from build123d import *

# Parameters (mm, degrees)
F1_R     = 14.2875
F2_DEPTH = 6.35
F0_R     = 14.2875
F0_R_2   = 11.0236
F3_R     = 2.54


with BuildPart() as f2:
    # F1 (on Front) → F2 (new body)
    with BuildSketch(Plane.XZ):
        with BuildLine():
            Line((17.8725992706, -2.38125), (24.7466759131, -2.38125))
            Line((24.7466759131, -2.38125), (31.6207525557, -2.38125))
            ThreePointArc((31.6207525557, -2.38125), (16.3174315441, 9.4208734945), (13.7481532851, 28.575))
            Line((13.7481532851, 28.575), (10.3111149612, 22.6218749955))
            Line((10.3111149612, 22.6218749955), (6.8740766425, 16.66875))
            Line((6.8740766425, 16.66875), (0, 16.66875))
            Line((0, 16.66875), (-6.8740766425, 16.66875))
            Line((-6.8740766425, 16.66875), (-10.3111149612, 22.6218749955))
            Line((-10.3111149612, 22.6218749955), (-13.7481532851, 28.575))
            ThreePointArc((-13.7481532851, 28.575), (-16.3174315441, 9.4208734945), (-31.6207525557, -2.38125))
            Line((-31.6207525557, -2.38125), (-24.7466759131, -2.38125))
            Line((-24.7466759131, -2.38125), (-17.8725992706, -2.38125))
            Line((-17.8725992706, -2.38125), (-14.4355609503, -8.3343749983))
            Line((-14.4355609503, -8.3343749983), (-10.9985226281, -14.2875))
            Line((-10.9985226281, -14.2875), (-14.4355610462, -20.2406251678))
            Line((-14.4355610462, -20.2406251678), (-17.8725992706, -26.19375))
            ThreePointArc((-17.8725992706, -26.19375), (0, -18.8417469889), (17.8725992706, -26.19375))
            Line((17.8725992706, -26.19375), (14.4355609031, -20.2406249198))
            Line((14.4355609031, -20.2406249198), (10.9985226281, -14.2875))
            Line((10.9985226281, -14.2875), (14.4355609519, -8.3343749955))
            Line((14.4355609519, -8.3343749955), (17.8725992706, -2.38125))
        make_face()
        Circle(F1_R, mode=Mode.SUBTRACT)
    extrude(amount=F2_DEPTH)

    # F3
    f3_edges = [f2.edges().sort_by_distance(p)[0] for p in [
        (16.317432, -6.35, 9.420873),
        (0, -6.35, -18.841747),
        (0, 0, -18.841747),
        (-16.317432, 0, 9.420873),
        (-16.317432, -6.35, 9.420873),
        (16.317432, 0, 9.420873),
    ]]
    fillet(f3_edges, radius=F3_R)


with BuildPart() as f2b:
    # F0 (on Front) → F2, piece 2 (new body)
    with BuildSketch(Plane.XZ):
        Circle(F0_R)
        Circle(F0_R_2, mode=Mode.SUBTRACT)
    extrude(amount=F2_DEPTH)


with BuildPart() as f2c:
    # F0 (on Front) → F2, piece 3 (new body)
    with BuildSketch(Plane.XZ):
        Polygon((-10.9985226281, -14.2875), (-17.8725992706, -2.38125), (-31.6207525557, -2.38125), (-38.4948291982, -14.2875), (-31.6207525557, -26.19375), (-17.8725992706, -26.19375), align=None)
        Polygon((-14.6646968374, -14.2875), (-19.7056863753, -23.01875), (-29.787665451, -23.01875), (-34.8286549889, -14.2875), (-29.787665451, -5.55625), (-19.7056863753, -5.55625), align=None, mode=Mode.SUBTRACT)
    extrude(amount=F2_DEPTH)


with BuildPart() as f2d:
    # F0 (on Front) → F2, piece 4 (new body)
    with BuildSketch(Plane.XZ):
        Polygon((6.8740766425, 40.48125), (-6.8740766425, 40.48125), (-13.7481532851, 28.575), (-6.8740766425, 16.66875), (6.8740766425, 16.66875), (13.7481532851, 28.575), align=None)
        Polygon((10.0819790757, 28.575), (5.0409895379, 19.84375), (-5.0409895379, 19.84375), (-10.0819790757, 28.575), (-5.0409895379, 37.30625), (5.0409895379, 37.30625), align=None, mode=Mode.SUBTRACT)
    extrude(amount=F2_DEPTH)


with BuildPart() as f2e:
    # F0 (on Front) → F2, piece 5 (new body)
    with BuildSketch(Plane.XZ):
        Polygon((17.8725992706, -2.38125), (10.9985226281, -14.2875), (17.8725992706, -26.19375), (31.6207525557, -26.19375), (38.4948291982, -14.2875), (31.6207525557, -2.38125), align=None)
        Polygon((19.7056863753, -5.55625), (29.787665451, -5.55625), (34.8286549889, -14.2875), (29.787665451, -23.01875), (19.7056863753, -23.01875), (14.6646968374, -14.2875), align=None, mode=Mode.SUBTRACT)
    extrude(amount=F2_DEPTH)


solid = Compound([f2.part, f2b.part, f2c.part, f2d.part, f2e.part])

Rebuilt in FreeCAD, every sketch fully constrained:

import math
import FreeCAD as App
import Part
import Sketcher
Q = App.Units.Quantity


def edges_at(feature, points):
    """Names of the edges that pass closest to the given points."""
    edges = feature.Shape.Edges
    near = lambda p: min(range(len(edges)), key=lambda i: edges[i].distToShape(Part.Vertex(*p))[0])
    return sorted({f"Edge{near(p) + 1}" for p in points})


def add_polygon(sketch, points):
    """Adds a closed chain of lines whose ends are joined by coincident constraints."""
    first, n = sketch.GeometryCount, len(points)
    for a, b in zip(points, points[1:] + points[:1]):
        sketch.addGeometry(Part.LineSegment(App.Vector(*a, 0), App.Vector(*b, 0)), False)
    for i in range(n):
        sketch.addConstraint(Sketcher.Constraint("Coincident", first + i, 2, first + (i + 1) % n, 1))

doc = App.newDocument("Part")
body = doc.addObject("PartDesign::Body", "Body")

# Sketch on XZ plane
sketch1 = doc.addObject("Sketcher::SketchObject", "Sketch")
body.addObject(sketch1)
sketch1.AttachmentSupport = (doc.XZ_Plane, [""])
sketch1.MapMode = "FlatFace"
sketch1.addGeometry([
    Part.LineSegment(App.Vector(18, -2, 0), App.Vector(32, -2, 0)),  # 0
    Part.ArcOfCircle(Part.Circle(App.Vector(38, 22, 0), App.Vector(0, 0, 1), 25), math.radians(165), math.radians(255)),  # 1
    Part.LineSegment(App.Vector(14, 29, 0), App.Vector(7, 17, 0)),  # 2
    Part.LineSegment(App.Vector(7, 17, 0), App.Vector(-7, 17, 0)),  # 3
    Part.LineSegment(App.Vector(-7, 17, 0), App.Vector(-14, 29, 0)),  # 4
    Part.ArcOfCircle(Part.Circle(App.Vector(-38, 22, 0), App.Vector(0, 0, 1), 25), math.radians(-75), math.radians(15)),  # 5
    Part.LineSegment(App.Vector(-32, -2, 0), App.Vector(-18, -2, 0)),  # 6
    Part.LineSegment(App.Vector(-18, -2, 0), App.Vector(-14, -8, 0)),  # 7
    Part.LineSegment(App.Vector(-14, -8, 0), App.Vector(-11, -14, 0)),  # 8
    Part.LineSegment(App.Vector(-11, -14, 0), App.Vector(-14, -20, 0)),  # 9
    Part.LineSegment(App.Vector(-14, -20, 0), App.Vector(-18, -26, 0)),  # 10
    Part.ArcOfCircle(Part.Circle(App.Vector(0, -44, 0), App.Vector(0, 0, 1), 25), math.radians(45), math.radians(135)),  # 11
    Part.LineSegment(App.Vector(18, -26, 0), App.Vector(14, -20, 0)),  # 12
    Part.LineSegment(App.Vector(14, -20, 0), App.Vector(11, -14, 0)),  # 13
    Part.LineSegment(App.Vector(11, -14, 0), App.Vector(14, -8, 0)),  # 14
    Part.LineSegment(App.Vector(14, -8, 0), App.Vector(18, -2, 0)),  # 15
    Part.Circle(App.Vector(0, 0, 0), App.Vector(0, 0, 1), 14),  # 16
], False)
sketch1.addConstraint([
    Sketcher.Constraint("Coincident", 0, 2, 1, 2),
    Sketcher.Constraint("Coincident", 1, 1, 2, 1),
    Sketcher.Constraint("Coincident", 2, 2, 3, 1),
    Sketcher.Constraint("Coincident", 3, 2, 4, 1),
    Sketcher.Constraint("Coincident", 4, 2, 5, 2),
    Sketcher.Constraint("Coincident", 5, 1, 6, 1),
    Sketcher.Constraint("Coincident", 6, 2, 7, 1),
    Sketcher.Constraint("Coincident", 7, 2, 8, 1),
    Sketcher.Constraint("Coincident", 8, 2, 9, 1),
    Sketcher.Constraint("Coincident", 9, 2, 10, 1),
    Sketcher.Constraint("Coincident", 10, 2, 11, 2),
    Sketcher.Constraint("Coincident", 11, 1, 12, 1),
    Sketcher.Constraint("Coincident", 12, 2, 13, 1),
    Sketcher.Constraint("Coincident", 13, 2, 14, 1),
    Sketcher.Constraint("Coincident", 14, 2, 15, 1),
    Sketcher.Constraint("Coincident", 15, 2, 0, 1),
    Sketcher.Constraint("Horizontal", 0),
    Sketcher.Constraint("Horizontal", 3),
    Sketcher.Constraint("Horizontal", 6),
    Sketcher.Constraint("Coincident", 16, 3, -1, 1),
    Sketcher.Constraint("Equal", 1, 5),
    Sketcher.Constraint("Equal", 5, 11),
    Sketcher.Constraint("Symmetric", 1, 3, 5, 3, -2),
    Sketcher.Constraint("Symmetric", 10, 2, 11, 1, -2),
    Sketcher.Constraint("Symmetric", 9, 2, 12, 2, -2),
    Sketcher.Constraint("Symmetric", 8, 2, 13, 2, -2),
    Sketcher.Constraint("Symmetric", 7, 2, 14, 2, -2),
    Sketcher.Constraint("Symmetric", 6, 2, 15, 2, -2),
    Sketcher.Constraint("Parallel", 4, 7),
    Sketcher.Constraint("Parallel", 7, 8),
    Sketcher.Constraint("Parallel", 2, 9),
    Sketcher.Constraint("Parallel", 9, 10),
    Sketcher.Constraint("Parallel", 8, 12),
    Sketcher.Constraint("Horizontal", 1, 1, 4, 2),
    Sketcher.Constraint("Vertical", 7, 2, 9, 2),
    Sketcher.Constraint("Vertical", 6, 2, 10, 2),
    Sketcher.Constraint("Equal", 0, 3),
    Sketcher.Constraint("Equal", 7, 8),
    Sketcher.Constraint("Radius", 1, Q("1 in")),
    Sketcher.Constraint("Diameter", 16, Q("1.125 in")),
    Sketcher.Constraint("Angle", 2, Q("-120 deg")),
    Sketcher.Constraint("DistanceY", 0, 2, 2, 2, Q("0.75 in")),
    Sketcher.Constraint("DistanceY", 0, 2, -1, 1, Q("0.09375 in")),
    Sketcher.Constraint("DistanceY", -1, 1, 1, 1, Q("1.125 in")),
    Sketcher.Constraint("DistanceY", 7, 2, -1, 1, Q("0.328125 in")),
    Sketcher.Constraint("DistanceX", 6, 2, -1, 1, 17.872599),
    Sketcher.Constraint("DistanceX", 1, 1, 0, 2, 17.872599),
])
pad1 = doc.addObject("PartDesign::Pad", "Pad")
body.addObject(pad1)
pad1.Profile = sketch1
pad1.Length = Q("0.25 in")
doc.recompute()

fillet = doc.addObject("PartDesign::Fillet", "Fillet")
body.addObject(fillet)
fillet.Base = (pad1, edges_at(pad1, [
    (16.317, -6.35, 9.421),
    (0, -6.35, -18.842),
    (0, 0, -18.842),
    (-16.317, 0, 9.421),
    (-16.317, -6.35, 9.421),
    (16.317, 0, 9.421),
]))
fillet.Radius = Q("0.1 in")
body2 = doc.addObject("PartDesign::Body", "Body001")

# Sketch on XZ plane
sketch2 = doc.addObject("Sketcher::SketchObject", "Sketch001")
body2.addObject(sketch2)
sketch2.AttachmentSupport = (doc.getObject("XZ_Plane001"), [""])
sketch2.MapMode = "FlatFace"
sketch2.addGeometry([
    Part.Circle(App.Vector(0, 0, 0), App.Vector(0, 0, 1), 14),
    Part.Circle(App.Vector(0, 0, 0), App.Vector(0, 0, 1), 11),
], False)
sketch2.addConstraint([
    Sketcher.Constraint("Coincident", 0, 3, -1, 1),
    Sketcher.Constraint("Coincident", 1, 3, -1, 1),
    Sketcher.Constraint("Diameter", 0, Q("1.125 in")),
    Sketcher.Constraint("Diameter", 1, Q("0.868 in")),
])
pad2 = doc.addObject("PartDesign::Pad", "Pad001")
body2.addObject(pad2)
pad2.Profile = sketch2
pad2.Length = Q("0.25 in")
body3 = doc.addObject("PartDesign::Body", "Body002")

# Sketch on XZ plane
sketch3 = doc.addObject("Sketcher::SketchObject", "Sketch002")
body3.addObject(sketch3)
sketch3.AttachmentSupport = (doc.getObject("XZ_Plane002"), [""])
sketch3.MapMode = "FlatFace"
add_polygon(sketch3, [(-11, -14), (-18, -2), (-32, -2), (-38, -14), (-32, -26), (-18, -26)])  # lines 0-5
add_polygon(sketch3, [(-20, -6), (-15, -14), (-20, -23), (-30, -23), (-35, -14), (-30, -6)])  # lines 6-11
sketch3.addConstraint([
    Sketcher.Constraint("Horizontal", 1),
    Sketcher.Constraint("Horizontal", 4),
    Sketcher.Constraint("Horizontal", 8),
    Sketcher.Constraint("Horizontal", 11),
    Sketcher.Constraint("Parallel", 0, 3),
    Sketcher.Constraint("Parallel", 2, 5),
    Sketcher.Constraint("Parallel", 3, 6),
    Sketcher.Constraint("Parallel", 5, 7),
    Sketcher.Constraint("Parallel", 6, 9),
    Sketcher.Constraint("Parallel", 7, 10),
    Sketcher.Constraint("Horizontal", 2, 2, 5, 2),
    Sketcher.Constraint("Horizontal", 5, 2, 6, 2),
    Sketcher.Constraint("Horizontal", 6, 2, 9, 2),
    Sketcher.Constraint("Vertical", 1, 2, 3, 2),
    Sketcher.Constraint("Vertical", 0, 2, 4, 2),
    Sketcher.Constraint("Vertical", 8, 2, 10, 2),
    Sketcher.Constraint("Angle", 0, Q("120 deg")),
    Sketcher.Constraint("DistanceY", 0, 2, -1, 1, Q("0.09375 in")),
    Sketcher.Constraint("DistanceY", 2, 2, -1, 1, Q("0.5625 in")),
    Sketcher.Constraint("DistanceY", 7, 2, -1, 1, Q("0.90625 in")),
    Sketcher.Constraint("DistanceX", 8, 2, 8, 1, 10.081979),
    Sketcher.Constraint("DistanceX", 0, 2, -1, 1, 17.872599),
    Sketcher.Constraint("DistanceX", 1, 2, 1, 1, 13.748153),
    Sketcher.Constraint("DistanceX", 6, 2, -1, 1, 14.664697),
])
pad3 = doc.addObject("PartDesign::Pad", "Pad002")
body3.addObject(pad3)
pad3.Profile = sketch3
pad3.Length = Q("0.25 in")
body4 = doc.addObject("PartDesign::Body", "Body003")

# Sketch on XZ plane
sketch4 = doc.addObject("Sketcher::SketchObject", "Sketch003")
body4.addObject(sketch4)
sketch4.AttachmentSupport = (doc.getObject("XZ_Plane003"), [""])
sketch4.MapMode = "FlatFace"
add_polygon(sketch4, [(7, 40), (-7, 40), (-14, 29), (-7, 17), (7, 17), (14, 29)])  # lines 0-5
add_polygon(sketch4, [(5, 37), (10, 29), (5, 20), (-5, 20), (-10, 29), (-5, 37)])  # lines 6-11
sketch4.addConstraint([
    Sketcher.Constraint("Horizontal", 0),
    Sketcher.Constraint("Horizontal", 3),
    Sketcher.Constraint("Horizontal", 8),
    Sketcher.Constraint("Horizontal", 11),
    Sketcher.Constraint("Symmetric", 1, 2, 4, 2, -2),
    Sketcher.Constraint("Symmetric", 6, 2, 9, 2, -2),
    Sketcher.Constraint("Parallel", 1, 4),
    Sketcher.Constraint("Parallel", 2, 5),
    Sketcher.Constraint("Parallel", 5, 6),
    Sketcher.Constraint("Parallel", 4, 7),
    Sketcher.Constraint("Parallel", 6, 9),
    Sketcher.Constraint("Parallel", 7, 10),
    Sketcher.Constraint("Horizontal", 4, 2, 6, 2),
    Sketcher.Constraint("Vertical", 0, 2, 2, 2),
    Sketcher.Constraint("Vertical", 3, 2, 5, 2),
    Sketcher.Constraint("Vertical", 8, 2, 10, 2),
    Sketcher.Constraint("Angle", 1, Q("-120 deg")),
    Sketcher.Constraint("DistanceY", -1, 1, 0, 2, Q("1.59375 in")),
    Sketcher.Constraint("DistanceY", -1, 1, 1, 2, Q("1.125 in")),
    Sketcher.Constraint("DistanceY", -1, 1, 7, 2, Q("0.78125 in")),
    Sketcher.Constraint("DistanceX", 8, 2, 8, 1, 10.081979),
    Sketcher.Constraint("DistanceX", 0, 2, 0, 1, 13.748153),
])
pad4 = doc.addObject("PartDesign::Pad", "Pad003")
body4.addObject(pad4)
pad4.Profile = sketch4
pad4.Length = Q("0.25 in")
body5 = doc.addObject("PartDesign::Body", "Body004")

# Sketch on XZ plane
sketch5 = doc.addObject("Sketcher::SketchObject", "Sketch004")
body5.addObject(sketch5)
sketch5.AttachmentSupport = (doc.getObject("XZ_Plane004"), [""])
sketch5.MapMode = "FlatFace"
add_polygon(sketch5, [(18, -2), (11, -14), (18, -26), (32, -26), (38, -14), (32, -2)])  # lines 0-5
add_polygon(sketch5, [(15, -14), (20, -6), (30, -6), (35, -14), (30, -23), (20, -23)])  # lines 6-11
sketch5.addConstraint([
    Sketcher.Constraint("Horizontal", 2),
    Sketcher.Constraint("Horizontal", 5),
    Sketcher.Constraint("Horizontal", 7),
    Sketcher.Constraint("Horizontal", 10),
    Sketcher.Constraint("Parallel", 0, 3),
    Sketcher.Constraint("Parallel", 1, 4),
    Sketcher.Constraint("Parallel", 3, 6),
    Sketcher.Constraint("Parallel", 4, 8),
    Sketcher.Constraint("Parallel", 6, 9),
    Sketcher.Constraint("Parallel", 8, 11),
    Sketcher.Constraint("Horizontal", 0, 2, 3, 2),
    Sketcher.Constraint("Horizontal", 3, 2, 8, 2),
    Sketcher.Constraint("Horizontal", 8, 2, 11, 2),
    Sketcher.Constraint("Vertical", 2, 2, 4, 2),
    Sketcher.Constraint("Vertical", 1, 2, 5, 2),
    Sketcher.Constraint("Vertical", 7, 2, 9, 2),
    Sketcher.Constraint("Angle", 0, Q("-120 deg")),
    Sketcher.Constraint("DistanceY", 0, 2, -1, 1, Q("0.5625 in")),
    Sketcher.Constraint("DistanceY", 1, 2, -1, 1, Q("1.03125 in")),
    Sketcher.Constraint("DistanceY", 6, 2, -1, 1, Q("0.21875 in")),
    Sketcher.Constraint("DistanceX", 7, 1, 7, 2, 10.081979),
    Sketcher.Constraint("DistanceX", -1, 1, 1, 2, 17.872599),
    Sketcher.Constraint("DistanceX", 2, 1, 2, 2, 13.748153),
    Sketcher.Constraint("DistanceX", -1, 1, 6, 2, 19.705686),
])
pad5 = doc.addObject("PartDesign::Pad", "Pad004")
body5.addObject(pad5)
pad5.Profile = sketch5
pad5.Length = Q("0.25 in")

doc.recompute()
